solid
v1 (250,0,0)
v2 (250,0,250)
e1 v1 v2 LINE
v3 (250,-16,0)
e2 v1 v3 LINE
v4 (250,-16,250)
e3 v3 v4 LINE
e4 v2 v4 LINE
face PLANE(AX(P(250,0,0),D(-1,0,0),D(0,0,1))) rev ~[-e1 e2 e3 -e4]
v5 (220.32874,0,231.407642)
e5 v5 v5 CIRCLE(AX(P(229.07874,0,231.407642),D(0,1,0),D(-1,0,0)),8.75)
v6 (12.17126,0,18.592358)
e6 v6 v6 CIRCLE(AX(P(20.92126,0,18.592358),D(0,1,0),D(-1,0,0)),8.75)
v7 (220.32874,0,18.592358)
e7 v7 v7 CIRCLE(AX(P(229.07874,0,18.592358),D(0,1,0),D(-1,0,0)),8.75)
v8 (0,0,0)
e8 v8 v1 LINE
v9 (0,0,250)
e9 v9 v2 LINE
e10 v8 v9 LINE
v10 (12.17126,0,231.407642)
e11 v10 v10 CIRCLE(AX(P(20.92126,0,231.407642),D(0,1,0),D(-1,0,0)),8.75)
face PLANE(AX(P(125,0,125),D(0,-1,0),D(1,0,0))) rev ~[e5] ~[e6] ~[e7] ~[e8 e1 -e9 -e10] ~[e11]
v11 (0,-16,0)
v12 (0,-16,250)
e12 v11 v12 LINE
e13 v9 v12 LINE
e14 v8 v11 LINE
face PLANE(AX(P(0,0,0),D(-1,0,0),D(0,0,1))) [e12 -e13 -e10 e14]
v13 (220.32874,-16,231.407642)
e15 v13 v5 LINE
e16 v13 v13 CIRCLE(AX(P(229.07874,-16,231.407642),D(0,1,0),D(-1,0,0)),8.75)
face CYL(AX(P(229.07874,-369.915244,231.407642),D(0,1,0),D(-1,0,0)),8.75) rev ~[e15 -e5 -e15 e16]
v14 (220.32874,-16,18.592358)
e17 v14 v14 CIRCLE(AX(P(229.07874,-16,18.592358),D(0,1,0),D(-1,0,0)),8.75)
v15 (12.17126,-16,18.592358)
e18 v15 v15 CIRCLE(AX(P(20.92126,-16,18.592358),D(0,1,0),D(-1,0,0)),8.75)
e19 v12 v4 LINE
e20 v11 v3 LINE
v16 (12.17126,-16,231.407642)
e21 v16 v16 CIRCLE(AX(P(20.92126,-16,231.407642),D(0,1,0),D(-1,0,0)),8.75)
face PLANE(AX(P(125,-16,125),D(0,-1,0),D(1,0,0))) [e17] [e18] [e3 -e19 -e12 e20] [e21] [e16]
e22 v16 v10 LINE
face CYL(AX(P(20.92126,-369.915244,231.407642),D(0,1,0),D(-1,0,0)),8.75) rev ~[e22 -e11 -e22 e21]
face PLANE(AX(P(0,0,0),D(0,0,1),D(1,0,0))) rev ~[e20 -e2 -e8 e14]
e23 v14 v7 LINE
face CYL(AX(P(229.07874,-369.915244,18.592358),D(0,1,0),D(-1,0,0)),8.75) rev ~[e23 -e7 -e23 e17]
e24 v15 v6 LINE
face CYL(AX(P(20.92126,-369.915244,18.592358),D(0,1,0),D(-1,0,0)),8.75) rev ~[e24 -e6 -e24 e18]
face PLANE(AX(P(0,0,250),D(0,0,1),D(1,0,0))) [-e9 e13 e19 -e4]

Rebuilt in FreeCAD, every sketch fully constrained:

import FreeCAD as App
import Part
import Sketcher

V = App.Vector
Q = App.Units.Quantity

doc = App.newDocument("Part")
body = doc.addObject("PartDesign::Body", "Body")

# Sketch on XZ plane
sketch1 = doc.addObject("Sketcher::SketchObject", "Sketch")
body.addObject(sketch1)
sketch1.AttachmentSupport = (doc.XZ_Plane, [""])
sketch1.MapMode = "FlatFace"
sketch1.addGeometry([
    Part.LineSegment(V(0, 250, 0), V(0, 0, 0)),
    Part.LineSegment(V(0, 0, 0), V(250, 0, 0)),
    Part.LineSegment(V(250, 0, 0), V(250, 250, 0)),
    Part.LineSegment(V(250, 250, 0), V(0, 250, 0)),
], False)
sketch1.addConstraint([
    Sketcher.Constraint("Coincident", 0, 2, 1, 1),
    Sketcher.Constraint("Coincident", 1, 2, 2, 1),
    Sketcher.Constraint("Coincident", 2, 2, 3, 1),
    Sketcher.Constraint("Coincident", 3, 2, 0, 1),
    Sketcher.Constraint("Vertical", 0),
    Sketcher.Constraint("Horizontal", 1),
    Sketcher.Constraint("Vertical", 2),
    Sketcher.Constraint("Horizontal", 3),
    Sketcher.Constraint("Coincident", 0, 2, -1, 1),
    Sketcher.Constraint("Equal", 3, 0),
    Sketcher.Constraint("DistanceX", 1, 1, 1, 2, Q("250 mm")),
])
pad1 = doc.addObject("PartDesign::Pad", "Pad")
body.addObject(pad1)
pad1.Profile = sketch1
pad1.Length = 16

# Sketch on XZ plane
sketch2 = doc.addObject("Sketcher::SketchObject", "Sketch001")
body.addObject(sketch2)
sketch2.AttachmentSupport = (doc.XZ_Plane, [""])
sketch2.MapMode = "FlatFace"
sketch2.AttachmentOffset = App.Placement(V(0, 0, 16), App.Rotation())
sketch2.addGeometry([
    Part.Circle(V(21, 231, 0), V(0, 0, 1), 9),
    Part.Circle(V(21, 19, 0), V(0, 0, 1), 9),
    Part.Circle(V(229, 19, 0), V(0, 0, 1), 9),
    Part.Circle(V(229, 231, 0), V(0, 0, 1), 9),
], False)
sketch2.addConstraint([
    Sketcher.Constraint("Equal", 0, 1),
    Sketcher.Constraint("Equal", 1, 2),
    Sketcher.Constraint("Equal", 2, 3),
    Sketcher.Constraint("Horizontal", 1, 3, 2, 3),
    Sketcher.Constraint("Horizontal", 0, 3, 3, 3),
    Sketcher.Constraint("Vertical", 0, 3, 1, 3),
    Sketcher.Constraint("Vertical", 2, 3, 3, 3),
    Sketcher.Constraint("Diameter", 0, Q("17.5 mm")),
    Sketcher.Constraint("DistanceX", -1, 1, 0, 3, Q("20.92126 mm")),
    Sketcher.Constraint("DistanceX", -1, 1, 2, 3, Q("229.07874 mm")),
    Sketcher.Constraint("DistanceY", -1, 1, 0, 3, Q("231.407642 mm")),
    Sketcher.Constraint("DistanceY", -1, 1, 1, 3, Q("18.592358 mm")),
])
doc.recompute()
hole = doc.addObject("PartDesign::Hole", "Hole")
body.addObject(hole)
hole.Profile = sketch2
hole.ThreadType = "None"
hole.Diameter = 17.5
hole.DepthType = "ThroughAll"

doc.recompute()
